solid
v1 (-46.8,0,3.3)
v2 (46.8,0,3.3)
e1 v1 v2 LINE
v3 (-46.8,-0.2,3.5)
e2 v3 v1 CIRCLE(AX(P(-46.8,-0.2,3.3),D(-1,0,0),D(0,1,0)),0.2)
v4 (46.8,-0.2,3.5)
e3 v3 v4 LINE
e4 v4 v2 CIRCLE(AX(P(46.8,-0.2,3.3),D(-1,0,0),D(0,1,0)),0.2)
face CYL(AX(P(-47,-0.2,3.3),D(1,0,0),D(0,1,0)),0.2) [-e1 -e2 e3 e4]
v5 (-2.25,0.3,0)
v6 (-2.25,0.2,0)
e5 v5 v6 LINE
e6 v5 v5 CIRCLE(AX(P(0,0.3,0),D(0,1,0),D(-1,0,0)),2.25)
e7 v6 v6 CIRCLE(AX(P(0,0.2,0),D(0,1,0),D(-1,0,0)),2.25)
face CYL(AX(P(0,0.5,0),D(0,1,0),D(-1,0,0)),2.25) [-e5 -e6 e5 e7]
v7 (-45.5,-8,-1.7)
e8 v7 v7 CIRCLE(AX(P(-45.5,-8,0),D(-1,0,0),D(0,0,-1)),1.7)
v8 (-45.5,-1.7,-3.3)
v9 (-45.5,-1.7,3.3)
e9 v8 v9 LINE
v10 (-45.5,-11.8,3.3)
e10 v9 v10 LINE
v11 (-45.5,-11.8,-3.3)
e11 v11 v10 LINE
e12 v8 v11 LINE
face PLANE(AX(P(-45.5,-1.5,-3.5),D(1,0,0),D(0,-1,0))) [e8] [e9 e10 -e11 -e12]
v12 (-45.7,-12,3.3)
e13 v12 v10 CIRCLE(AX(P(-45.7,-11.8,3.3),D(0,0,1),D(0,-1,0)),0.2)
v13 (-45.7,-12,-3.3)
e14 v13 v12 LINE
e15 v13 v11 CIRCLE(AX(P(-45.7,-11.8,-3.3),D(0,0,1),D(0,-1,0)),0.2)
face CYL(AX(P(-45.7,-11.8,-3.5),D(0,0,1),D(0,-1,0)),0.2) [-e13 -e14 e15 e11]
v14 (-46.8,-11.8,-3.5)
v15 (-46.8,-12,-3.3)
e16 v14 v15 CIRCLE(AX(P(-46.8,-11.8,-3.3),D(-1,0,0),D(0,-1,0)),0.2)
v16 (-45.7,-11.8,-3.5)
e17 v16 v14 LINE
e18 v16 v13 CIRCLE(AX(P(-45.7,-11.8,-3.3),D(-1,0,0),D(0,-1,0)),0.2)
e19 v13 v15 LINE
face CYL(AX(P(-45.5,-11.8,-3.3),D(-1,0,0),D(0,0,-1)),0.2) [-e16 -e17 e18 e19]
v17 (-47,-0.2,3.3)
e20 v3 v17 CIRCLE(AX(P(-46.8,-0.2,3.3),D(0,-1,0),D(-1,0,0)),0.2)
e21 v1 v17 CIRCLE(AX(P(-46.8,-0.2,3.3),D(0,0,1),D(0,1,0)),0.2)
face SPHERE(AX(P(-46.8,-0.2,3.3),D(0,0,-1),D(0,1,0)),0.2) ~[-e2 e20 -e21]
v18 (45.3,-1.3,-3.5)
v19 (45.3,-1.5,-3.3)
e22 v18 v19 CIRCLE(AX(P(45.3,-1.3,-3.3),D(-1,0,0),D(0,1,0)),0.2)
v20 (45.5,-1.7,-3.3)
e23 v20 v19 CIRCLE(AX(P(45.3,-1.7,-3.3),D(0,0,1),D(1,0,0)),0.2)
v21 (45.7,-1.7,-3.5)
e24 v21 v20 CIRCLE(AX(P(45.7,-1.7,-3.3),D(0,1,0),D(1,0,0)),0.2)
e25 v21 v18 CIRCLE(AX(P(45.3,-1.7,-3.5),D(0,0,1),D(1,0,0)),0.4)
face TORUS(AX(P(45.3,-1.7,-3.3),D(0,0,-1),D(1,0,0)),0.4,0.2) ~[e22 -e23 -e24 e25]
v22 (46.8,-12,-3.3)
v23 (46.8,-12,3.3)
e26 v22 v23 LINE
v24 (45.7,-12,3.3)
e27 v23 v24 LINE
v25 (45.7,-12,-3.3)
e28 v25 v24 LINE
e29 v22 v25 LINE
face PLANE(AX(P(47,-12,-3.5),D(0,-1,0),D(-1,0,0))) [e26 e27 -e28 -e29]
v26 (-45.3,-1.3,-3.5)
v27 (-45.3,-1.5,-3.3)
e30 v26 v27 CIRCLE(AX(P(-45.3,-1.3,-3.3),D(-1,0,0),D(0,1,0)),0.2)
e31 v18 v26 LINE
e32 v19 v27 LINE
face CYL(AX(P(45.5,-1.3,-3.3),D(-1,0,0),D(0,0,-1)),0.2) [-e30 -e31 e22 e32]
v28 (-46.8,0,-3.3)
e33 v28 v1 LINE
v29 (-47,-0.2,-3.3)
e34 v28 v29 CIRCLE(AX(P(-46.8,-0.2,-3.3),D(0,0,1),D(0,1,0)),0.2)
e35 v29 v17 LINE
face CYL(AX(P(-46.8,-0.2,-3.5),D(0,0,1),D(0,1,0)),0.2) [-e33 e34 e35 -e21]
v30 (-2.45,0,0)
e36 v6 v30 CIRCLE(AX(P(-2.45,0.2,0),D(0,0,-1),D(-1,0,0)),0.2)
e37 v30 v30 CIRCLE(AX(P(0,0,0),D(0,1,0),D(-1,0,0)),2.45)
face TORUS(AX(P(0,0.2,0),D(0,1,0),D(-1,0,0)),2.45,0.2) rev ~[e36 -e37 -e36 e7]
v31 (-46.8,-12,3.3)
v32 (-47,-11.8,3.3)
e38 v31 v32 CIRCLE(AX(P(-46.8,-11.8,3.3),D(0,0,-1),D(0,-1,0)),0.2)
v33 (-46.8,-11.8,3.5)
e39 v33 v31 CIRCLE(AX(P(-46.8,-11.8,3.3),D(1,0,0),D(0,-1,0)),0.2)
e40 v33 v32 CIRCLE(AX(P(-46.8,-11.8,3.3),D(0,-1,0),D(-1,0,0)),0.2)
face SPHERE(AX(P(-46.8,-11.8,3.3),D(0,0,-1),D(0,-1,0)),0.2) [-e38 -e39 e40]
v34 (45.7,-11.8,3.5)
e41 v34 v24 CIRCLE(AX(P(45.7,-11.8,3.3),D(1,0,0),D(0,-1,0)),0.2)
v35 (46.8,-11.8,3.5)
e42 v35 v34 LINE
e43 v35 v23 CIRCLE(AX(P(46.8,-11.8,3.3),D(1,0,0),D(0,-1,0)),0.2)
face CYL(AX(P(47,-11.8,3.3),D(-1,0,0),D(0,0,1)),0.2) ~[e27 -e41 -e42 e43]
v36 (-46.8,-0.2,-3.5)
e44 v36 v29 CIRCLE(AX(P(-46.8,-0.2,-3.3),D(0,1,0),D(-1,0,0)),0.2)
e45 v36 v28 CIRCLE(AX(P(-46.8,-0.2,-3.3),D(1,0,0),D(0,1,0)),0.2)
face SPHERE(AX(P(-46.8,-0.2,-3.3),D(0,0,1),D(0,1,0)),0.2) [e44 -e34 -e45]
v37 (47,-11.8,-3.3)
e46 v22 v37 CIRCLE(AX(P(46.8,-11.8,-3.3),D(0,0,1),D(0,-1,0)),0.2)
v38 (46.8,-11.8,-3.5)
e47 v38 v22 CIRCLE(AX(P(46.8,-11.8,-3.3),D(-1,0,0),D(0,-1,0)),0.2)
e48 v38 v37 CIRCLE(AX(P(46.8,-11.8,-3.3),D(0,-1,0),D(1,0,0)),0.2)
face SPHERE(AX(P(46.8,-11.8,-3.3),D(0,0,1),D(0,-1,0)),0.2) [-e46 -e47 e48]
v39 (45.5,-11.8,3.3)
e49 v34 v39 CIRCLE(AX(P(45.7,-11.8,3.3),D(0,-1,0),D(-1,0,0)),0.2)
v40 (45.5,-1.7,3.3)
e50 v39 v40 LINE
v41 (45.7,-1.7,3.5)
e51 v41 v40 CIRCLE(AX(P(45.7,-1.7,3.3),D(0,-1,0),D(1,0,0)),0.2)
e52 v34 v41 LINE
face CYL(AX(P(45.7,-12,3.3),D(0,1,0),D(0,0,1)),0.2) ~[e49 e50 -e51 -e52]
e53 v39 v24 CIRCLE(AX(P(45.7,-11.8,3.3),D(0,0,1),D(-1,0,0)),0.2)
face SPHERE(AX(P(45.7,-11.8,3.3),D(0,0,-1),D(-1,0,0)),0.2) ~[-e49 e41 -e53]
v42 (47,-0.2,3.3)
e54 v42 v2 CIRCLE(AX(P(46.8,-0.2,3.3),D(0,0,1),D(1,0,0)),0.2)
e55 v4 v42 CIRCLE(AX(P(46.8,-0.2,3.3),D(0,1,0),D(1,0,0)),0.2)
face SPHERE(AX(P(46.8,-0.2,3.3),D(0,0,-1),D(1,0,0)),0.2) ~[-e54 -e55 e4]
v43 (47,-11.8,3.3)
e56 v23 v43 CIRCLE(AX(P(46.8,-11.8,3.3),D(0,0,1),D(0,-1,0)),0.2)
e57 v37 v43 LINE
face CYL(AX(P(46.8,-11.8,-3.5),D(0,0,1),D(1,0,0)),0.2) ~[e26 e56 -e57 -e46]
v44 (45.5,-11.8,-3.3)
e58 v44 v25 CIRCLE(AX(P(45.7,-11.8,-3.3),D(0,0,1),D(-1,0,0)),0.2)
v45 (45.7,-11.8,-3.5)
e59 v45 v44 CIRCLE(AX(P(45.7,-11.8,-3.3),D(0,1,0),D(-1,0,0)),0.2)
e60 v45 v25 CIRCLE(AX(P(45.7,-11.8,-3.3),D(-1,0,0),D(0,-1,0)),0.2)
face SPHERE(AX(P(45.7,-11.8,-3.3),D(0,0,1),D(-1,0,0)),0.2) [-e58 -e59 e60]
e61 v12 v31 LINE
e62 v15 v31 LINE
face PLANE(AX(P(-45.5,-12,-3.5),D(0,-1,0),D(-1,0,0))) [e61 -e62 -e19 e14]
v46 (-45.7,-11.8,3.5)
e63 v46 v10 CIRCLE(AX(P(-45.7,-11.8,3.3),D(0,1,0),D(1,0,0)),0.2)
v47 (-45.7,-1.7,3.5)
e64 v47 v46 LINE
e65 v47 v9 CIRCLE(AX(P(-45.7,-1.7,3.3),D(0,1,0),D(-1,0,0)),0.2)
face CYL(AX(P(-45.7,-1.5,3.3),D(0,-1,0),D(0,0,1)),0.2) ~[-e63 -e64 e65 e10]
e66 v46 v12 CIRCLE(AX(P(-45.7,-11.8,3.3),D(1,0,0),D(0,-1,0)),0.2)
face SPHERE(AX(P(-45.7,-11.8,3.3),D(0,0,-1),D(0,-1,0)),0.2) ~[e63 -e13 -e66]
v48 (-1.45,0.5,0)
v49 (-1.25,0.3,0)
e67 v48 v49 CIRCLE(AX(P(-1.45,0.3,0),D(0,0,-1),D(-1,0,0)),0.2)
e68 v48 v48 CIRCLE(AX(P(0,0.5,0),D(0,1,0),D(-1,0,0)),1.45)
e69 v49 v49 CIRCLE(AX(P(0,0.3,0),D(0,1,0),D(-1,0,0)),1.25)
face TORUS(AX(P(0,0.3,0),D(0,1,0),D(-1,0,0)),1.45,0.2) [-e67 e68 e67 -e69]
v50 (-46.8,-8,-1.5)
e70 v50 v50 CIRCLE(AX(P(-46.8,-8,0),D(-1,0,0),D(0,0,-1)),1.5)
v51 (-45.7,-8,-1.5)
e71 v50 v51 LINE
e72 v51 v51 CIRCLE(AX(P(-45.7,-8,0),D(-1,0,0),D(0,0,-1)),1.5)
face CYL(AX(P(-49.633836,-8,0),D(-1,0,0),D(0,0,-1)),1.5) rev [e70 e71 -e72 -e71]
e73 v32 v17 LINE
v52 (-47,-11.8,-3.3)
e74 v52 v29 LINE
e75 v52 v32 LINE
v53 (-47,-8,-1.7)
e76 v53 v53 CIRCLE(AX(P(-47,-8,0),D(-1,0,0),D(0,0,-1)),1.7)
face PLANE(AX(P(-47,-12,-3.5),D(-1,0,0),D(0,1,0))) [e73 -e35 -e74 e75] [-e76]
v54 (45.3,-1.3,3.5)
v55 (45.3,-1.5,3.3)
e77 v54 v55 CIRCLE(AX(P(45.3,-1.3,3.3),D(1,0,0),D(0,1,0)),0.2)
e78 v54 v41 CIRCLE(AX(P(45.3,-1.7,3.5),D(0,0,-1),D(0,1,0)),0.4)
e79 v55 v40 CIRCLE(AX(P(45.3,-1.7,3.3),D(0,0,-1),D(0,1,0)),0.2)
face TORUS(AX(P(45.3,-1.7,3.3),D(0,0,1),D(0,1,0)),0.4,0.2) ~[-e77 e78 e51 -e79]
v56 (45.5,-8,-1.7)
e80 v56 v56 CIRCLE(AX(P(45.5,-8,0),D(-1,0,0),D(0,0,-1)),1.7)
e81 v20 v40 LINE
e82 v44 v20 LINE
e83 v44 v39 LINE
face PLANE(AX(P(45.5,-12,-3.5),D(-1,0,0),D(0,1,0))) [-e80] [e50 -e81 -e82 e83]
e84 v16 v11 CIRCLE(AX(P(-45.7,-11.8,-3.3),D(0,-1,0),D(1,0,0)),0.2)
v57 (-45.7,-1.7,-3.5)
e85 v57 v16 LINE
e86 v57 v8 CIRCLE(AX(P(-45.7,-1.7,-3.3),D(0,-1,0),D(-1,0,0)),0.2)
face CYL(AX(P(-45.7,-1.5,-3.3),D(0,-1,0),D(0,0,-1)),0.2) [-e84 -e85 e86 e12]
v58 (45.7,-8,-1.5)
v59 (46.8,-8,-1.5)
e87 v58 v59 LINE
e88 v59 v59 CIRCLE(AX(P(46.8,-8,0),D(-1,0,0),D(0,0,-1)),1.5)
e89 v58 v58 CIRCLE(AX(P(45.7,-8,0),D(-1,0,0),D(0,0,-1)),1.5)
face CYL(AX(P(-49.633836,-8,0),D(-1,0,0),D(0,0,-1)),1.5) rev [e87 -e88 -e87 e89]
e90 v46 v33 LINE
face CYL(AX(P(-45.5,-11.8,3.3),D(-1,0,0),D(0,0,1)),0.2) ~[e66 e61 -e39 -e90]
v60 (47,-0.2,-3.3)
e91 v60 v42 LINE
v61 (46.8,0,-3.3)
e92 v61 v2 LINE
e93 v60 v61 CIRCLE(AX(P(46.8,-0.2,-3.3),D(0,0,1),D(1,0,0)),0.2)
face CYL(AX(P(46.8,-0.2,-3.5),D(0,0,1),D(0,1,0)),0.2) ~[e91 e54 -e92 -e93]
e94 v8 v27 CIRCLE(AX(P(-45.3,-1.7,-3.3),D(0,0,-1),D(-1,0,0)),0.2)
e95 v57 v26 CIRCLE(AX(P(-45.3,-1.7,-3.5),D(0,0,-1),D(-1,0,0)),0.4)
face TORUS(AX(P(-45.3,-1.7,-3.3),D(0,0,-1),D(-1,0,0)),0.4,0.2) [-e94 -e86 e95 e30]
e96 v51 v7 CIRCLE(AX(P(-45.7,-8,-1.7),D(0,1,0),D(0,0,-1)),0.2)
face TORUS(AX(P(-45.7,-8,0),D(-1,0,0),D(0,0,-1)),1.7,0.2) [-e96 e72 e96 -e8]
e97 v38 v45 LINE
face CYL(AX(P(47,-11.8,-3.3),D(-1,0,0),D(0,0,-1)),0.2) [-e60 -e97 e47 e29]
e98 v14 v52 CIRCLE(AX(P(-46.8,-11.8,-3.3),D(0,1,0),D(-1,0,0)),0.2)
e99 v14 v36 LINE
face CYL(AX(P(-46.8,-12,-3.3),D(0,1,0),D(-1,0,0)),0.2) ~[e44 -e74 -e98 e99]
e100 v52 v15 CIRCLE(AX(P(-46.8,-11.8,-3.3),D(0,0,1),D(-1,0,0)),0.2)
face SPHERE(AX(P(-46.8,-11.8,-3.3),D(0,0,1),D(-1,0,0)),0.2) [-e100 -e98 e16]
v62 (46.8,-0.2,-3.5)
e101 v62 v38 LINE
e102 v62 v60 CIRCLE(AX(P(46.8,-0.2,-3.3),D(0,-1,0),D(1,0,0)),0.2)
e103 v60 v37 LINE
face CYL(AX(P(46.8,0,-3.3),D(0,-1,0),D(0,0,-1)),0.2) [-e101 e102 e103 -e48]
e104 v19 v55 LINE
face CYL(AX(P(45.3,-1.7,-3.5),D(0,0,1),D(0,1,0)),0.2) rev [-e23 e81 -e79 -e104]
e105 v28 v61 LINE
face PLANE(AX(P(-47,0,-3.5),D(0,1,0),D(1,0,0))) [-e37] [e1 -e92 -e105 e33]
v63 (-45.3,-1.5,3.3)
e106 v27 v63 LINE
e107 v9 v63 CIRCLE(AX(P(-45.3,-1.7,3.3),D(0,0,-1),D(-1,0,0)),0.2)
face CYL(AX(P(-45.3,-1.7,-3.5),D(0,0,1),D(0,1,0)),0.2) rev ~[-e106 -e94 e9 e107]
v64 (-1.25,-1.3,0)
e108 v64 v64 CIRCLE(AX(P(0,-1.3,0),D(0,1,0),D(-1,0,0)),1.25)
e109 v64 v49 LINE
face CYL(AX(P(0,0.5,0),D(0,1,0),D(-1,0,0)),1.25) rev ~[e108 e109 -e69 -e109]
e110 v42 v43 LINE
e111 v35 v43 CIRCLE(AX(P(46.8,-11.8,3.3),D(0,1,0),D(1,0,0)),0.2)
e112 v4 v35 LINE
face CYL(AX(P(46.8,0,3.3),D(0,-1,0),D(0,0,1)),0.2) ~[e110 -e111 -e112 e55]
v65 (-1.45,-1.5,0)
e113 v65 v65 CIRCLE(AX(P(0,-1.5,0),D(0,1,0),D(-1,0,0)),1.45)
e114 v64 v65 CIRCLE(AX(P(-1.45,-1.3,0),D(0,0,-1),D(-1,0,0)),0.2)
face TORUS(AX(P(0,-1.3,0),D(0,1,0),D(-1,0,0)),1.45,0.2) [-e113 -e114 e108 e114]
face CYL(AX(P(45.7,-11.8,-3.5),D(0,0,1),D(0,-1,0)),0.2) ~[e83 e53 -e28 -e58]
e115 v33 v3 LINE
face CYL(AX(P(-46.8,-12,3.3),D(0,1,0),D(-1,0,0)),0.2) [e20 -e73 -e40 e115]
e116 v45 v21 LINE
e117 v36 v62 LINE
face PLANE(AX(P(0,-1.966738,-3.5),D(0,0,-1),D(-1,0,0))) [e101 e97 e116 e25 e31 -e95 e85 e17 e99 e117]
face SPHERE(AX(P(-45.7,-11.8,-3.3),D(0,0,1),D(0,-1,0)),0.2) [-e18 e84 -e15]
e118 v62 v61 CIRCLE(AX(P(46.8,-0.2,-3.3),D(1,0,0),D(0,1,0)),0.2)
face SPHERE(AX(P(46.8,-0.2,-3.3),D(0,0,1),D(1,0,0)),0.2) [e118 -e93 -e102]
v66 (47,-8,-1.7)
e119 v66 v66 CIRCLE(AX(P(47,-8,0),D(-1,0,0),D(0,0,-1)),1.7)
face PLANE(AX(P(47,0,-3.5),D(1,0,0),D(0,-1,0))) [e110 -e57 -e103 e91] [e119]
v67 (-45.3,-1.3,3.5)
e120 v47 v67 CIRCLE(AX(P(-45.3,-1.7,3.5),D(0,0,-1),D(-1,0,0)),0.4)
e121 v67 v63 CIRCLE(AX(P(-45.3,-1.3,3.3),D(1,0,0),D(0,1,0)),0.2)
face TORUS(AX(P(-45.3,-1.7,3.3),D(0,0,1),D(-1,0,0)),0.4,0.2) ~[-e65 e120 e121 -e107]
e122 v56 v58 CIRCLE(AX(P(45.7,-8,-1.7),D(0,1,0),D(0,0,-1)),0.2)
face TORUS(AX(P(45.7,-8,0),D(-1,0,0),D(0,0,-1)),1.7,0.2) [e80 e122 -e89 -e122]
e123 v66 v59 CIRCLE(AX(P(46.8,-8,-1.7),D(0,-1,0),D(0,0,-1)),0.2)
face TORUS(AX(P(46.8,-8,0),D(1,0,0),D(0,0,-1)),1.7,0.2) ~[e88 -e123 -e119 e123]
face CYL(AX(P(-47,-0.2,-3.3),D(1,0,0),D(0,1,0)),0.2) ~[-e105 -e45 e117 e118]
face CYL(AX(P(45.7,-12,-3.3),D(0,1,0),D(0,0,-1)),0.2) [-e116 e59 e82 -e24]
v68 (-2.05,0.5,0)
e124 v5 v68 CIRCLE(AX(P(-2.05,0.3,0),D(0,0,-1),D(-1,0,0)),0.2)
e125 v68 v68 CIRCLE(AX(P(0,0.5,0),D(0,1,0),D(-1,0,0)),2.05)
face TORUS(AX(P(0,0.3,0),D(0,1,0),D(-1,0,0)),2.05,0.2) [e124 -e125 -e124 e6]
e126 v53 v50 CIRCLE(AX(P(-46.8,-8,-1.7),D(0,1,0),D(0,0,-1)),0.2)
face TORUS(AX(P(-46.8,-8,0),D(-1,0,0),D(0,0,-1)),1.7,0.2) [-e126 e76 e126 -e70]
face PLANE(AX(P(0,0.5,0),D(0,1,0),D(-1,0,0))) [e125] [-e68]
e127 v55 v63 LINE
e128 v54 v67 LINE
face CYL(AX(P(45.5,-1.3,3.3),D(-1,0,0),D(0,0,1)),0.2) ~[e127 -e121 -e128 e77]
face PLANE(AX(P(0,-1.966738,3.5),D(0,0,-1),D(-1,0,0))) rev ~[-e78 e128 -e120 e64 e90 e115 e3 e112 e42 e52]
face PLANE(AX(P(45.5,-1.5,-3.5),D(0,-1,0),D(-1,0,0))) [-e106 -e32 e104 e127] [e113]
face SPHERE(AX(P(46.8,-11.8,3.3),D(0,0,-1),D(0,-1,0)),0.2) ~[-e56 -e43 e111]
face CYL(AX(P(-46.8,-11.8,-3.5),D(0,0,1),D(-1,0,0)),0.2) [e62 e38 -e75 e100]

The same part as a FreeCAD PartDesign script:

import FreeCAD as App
import Part
import Sketcher


def add_polygon(sketch, points):
    """Adds a closed chain of lines whose ends are joined by coincident constraints."""
    first, n = sketch.GeometryCount, len(points)
    for a, b in zip(points, points[1:] + points[:1]):
        sketch.addGeometry(Part.LineSegment(App.Vector(*a, 0), App.Vector(*b, 0)), False)
    for i in range(n):
        sketch.addConstraint(Sketcher.Constraint("Coincident", first + i, 2, first + (i + 1) % n, 1))

doc = App.newDocument("Part")
body = doc.addObject("PartDesign::Body", "Body")

# Sketch on XY plane
sketch1 = body.newObject("Sketcher::SketchObject", "Sketch")
sketch1.AttachmentSupport = (doc.getObject("XY_Plane"), [""])
sketch1.MapMode = "FlatFace"
add_polygon(sketch1, [(-47, 0), (-47, -12), (-45.5, -12), (-45.5, -1.5), (45.5, -1.5), (45.5, -12), (47, -12), (47, 0)])  # lines 0-7
sketch1.addConstraint([
    Sketcher.Constraint("Vertical", 0),
    Sketcher.Constraint("Horizontal", 1),
    Sketcher.Constraint("Vertical", 2),
    Sketcher.Constraint("Horizontal", 3),
    Sketcher.Constraint("Vertical", 4),
    Sketcher.Constraint("Horizontal", 5),
    Sketcher.Constraint("Vertical", 6),
    Sketcher.Constraint("Horizontal", 7),
    Sketcher.Constraint("Symmetric", 6, 2, 7, 2, -1, 1),
    Sketcher.Constraint("Symmetric", 1, 2, 4, 2, -2),
    Sketcher.Constraint("DistanceX", 3, 1, 3, 2, 91.0),
    Sketcher.Constraint("DistanceX", 7, 2, 7, 1, 94.0),
    Sketcher.Constraint("DistanceY", 0, 2, 0, 1, 12.0),
    Sketcher.Constraint("DistanceY", 2, 1, 2, 2, 10.5),
])
pad1 = body.newObject("PartDesign::Pad", "Pad")
pad1.Profile = sketch1
pad1.Type = "TwoLengths"
pad1.Length = 3.5
pad1.Length2 = 3.5

# Sketch on XZ plane
sketch2 = body.newObject("Sketcher::SketchObject", "Sketch001")
sketch2.AttachmentSupport = (doc.getObject("XZ_Plane"), [""])
sketch2.MapMode = "FlatFace"
sketch2.addGeometry(Part.Circle(App.Vector(0, 0, 0), App.Vector(0, 0, 1), 1.25), False)
sketch2.addConstraint([
    Sketcher.Constraint("Coincident", 0, 3, -1, 1),
    Sketcher.Constraint("Diameter", 0, 2.5),
])
pocket1 = body.newObject("PartDesign::Pocket", "Pocket")
pocket1.Profile = sketch2
pocket1.Length = 3.5
pocket1.Reversed = True

# Sketch on XZ plane
sketch3 = body.newObject("Sketcher::SketchObject", "Sketch002")
sketch3.AttachmentSupport = (doc.getObject("XZ_Plane"), [""])
sketch3.MapMode = "FlatFace"
sketch3.AttachmentOffset = App.Placement(App.Vector(0, 0, -0.5), App.Rotation())
sketch3.addGeometry([
    Part.Circle(App.Vector(0, 0, 0), App.Vector(0, 0, 1), 2.25),
    Part.Circle(App.Vector(0, 0, 0), App.Vector(0, 0, 1), 1.25),
], False)
sketch3.addConstraint([
    Sketcher.Constraint("Coincident", 0, 3, -1, 1),
    Sketcher.Constraint("Coincident", 1, 3, -1, 1),
    Sketcher.Constraint("Diameter", 0, 4.5),
    Sketcher.Constraint("Diameter", 1, 2.5),
])
pad2 = body.newObject("PartDesign::Pad", "Pad001")
pad2.Profile = sketch3
pad2.Length = 0.5

# Sketch on YZ plane
sketch4 = body.newObject("Sketcher::SketchObject", "Sketch003")
sketch4.AttachmentSupport = (doc.getObject("YZ_Plane"), [""])
sketch4.MapMode = "FlatFace"
sketch4.addGeometry(Part.Circle(App.Vector(-8, 0, 0), App.Vector(0, 0, 1), 1.5), False)
sketch4.addConstraint([
    Sketcher.Constraint("PointOnObject", 0, 3, -1),
    Sketcher.Constraint("Diameter", 0, 3.0),
    Sketcher.Constraint("DistanceX", 0, 3, -1, 1, 8.0),
])
pocket2 = body.newObject("PartDesign::Pocket", "Pocket001")
pocket2.Profile = sketch4
pocket2.Type = "ThroughAll"
pocket2.Midplane = True
doc.recompute()

fillet = body.newObject("PartDesign::Fillet", "Fillet")
fillet.Base = (pocket2, ["Edge1"])
fillet.UseAllEdges = True
fillet.Radius = 0.2

doc.recompute()
